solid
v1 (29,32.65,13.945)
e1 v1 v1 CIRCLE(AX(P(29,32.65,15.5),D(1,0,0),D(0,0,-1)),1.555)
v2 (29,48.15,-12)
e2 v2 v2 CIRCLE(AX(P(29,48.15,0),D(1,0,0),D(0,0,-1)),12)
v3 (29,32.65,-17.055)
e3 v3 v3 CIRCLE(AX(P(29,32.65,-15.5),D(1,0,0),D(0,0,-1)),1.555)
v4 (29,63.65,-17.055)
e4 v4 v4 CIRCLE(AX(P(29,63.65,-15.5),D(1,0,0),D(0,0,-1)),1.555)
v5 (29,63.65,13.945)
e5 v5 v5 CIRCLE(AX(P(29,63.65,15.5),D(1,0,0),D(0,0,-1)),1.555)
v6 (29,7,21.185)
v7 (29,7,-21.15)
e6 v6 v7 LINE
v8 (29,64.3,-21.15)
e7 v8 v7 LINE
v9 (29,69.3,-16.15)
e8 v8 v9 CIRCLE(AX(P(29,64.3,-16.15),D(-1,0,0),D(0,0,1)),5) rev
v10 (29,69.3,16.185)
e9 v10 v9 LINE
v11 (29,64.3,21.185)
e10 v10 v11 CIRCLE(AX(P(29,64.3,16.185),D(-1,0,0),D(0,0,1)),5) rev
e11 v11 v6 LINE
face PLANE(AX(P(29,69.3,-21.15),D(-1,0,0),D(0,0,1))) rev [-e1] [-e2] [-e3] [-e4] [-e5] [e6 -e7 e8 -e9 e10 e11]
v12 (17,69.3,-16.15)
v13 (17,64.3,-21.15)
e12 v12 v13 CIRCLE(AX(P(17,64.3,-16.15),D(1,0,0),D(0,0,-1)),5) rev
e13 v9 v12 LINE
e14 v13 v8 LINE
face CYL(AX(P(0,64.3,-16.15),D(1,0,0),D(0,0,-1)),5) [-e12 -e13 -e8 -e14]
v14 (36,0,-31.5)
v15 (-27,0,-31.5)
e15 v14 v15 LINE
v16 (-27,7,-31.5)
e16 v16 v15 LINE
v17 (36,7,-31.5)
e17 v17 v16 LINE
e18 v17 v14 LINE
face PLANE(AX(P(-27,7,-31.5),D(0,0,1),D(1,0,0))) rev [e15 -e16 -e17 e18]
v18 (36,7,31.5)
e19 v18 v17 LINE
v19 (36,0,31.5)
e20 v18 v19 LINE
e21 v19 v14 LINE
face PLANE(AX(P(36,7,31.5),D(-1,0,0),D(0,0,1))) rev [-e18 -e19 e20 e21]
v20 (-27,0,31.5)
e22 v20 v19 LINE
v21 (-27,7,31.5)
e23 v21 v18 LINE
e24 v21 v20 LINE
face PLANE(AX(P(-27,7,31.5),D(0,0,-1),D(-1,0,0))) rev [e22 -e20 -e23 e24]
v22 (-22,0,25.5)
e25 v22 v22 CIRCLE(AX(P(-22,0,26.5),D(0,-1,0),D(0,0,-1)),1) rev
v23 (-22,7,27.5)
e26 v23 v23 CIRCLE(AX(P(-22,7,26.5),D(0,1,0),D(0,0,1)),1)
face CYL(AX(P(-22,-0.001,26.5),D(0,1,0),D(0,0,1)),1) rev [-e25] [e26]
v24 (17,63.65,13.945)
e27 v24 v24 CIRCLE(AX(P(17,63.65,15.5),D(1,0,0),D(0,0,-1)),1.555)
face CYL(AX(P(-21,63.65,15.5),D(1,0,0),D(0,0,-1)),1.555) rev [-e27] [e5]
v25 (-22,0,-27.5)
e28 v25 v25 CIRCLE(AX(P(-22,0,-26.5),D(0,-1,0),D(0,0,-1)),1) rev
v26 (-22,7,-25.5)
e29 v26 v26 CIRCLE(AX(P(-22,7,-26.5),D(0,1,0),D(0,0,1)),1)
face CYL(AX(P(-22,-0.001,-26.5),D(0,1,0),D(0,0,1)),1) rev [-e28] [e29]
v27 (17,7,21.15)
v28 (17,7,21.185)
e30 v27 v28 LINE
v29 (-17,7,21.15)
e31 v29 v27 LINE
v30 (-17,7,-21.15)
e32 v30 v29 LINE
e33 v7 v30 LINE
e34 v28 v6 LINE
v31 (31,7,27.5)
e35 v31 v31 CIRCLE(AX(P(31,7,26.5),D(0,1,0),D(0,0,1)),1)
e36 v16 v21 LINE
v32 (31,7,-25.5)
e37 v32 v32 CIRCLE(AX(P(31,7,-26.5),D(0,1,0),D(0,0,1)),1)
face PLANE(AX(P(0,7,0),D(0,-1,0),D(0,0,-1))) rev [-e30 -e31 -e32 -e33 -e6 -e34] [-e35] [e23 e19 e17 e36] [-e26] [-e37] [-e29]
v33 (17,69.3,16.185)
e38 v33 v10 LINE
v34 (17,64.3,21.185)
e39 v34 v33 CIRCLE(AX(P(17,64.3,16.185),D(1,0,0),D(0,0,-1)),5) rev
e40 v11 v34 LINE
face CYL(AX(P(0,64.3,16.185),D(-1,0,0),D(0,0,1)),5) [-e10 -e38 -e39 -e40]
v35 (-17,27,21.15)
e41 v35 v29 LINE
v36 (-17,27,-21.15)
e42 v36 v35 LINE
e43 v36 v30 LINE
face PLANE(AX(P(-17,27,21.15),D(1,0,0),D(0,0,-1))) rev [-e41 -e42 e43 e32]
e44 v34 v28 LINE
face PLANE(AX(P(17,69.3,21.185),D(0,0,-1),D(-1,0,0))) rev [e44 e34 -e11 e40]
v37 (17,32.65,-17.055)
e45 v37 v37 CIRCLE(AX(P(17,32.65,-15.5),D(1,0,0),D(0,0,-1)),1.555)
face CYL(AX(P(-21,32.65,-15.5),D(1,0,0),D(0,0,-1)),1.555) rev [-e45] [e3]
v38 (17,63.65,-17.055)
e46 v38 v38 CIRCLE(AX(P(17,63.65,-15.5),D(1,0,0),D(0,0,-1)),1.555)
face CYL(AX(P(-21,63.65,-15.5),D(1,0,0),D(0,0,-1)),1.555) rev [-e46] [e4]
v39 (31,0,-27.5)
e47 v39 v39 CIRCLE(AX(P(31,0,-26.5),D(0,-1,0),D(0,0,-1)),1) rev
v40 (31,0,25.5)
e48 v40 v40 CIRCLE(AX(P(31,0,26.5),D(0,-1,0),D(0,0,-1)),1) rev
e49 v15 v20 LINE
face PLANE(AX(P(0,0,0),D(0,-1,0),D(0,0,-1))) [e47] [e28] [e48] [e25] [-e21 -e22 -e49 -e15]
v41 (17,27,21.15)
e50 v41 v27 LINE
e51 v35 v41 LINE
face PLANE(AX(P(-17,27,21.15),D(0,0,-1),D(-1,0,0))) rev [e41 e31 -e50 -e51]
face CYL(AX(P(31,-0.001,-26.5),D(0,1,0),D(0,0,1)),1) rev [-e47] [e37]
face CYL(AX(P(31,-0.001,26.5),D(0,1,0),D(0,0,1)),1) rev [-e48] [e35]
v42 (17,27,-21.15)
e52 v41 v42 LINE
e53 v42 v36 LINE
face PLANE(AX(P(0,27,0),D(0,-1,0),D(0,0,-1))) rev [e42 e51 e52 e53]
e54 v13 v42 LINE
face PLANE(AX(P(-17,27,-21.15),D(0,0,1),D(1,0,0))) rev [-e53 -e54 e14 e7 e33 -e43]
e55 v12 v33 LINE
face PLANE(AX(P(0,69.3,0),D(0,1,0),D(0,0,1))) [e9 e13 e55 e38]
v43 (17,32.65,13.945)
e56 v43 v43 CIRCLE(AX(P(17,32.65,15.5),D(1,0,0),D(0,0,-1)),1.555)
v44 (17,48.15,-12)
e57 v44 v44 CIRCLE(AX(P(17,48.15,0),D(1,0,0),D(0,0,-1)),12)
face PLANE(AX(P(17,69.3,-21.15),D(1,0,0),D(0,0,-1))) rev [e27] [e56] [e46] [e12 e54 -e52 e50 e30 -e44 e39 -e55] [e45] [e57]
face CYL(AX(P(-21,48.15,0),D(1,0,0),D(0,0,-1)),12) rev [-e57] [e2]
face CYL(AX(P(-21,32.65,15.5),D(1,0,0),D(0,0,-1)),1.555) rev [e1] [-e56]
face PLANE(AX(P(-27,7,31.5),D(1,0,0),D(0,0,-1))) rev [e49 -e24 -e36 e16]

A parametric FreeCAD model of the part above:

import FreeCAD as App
import Part
import Sketcher

V = App.Vector


def edges_at(feature, points):
    """Names of the edges that pass closest to the given points."""
    edges = feature.Shape.Edges
    near = lambda p: min(range(len(edges)), key=lambda i: edges[i].distToShape(Part.Vertex(*p))[0])
    return sorted({f"Edge{near(p) + 1}" for p in points})

doc = App.newDocument("Part")
params = doc.addObject("Spreadsheet::Sheet", "Params")
for row, (alias, value) in enumerate([
    ("sketch1_width", "63 mm"),
    ("pad1_length", "7 mm"),
    ("sketch2_width", "34 mm"),
    ("sketch2_height", "42.3 mm"),
    ("pad2_length", "20 mm"),
    ("sketch3_width", "12 mm"),
    ("pad3_length", "62.3 mm"),
    ("sketch4_diameter", "24 mm"),
    ("sketch4_diameter2", "3.11 mm"),
    ("pocket1_length", "50 mm"),
    ("fillet_radius", "5 mm"),
    ("sketch5_diameter", "2 mm"),
    ("sketch6_diameter", "2 mm"),
    ("sketch7_diameter", "2 mm"),
    ("sketch8_diameter", "2 mm"),
], start=1):
    params.set(f"A{row}", alias)
    params.set(f"B{row}", "=" + value)
    params.setAlias(f"B{row}", alias)

body = doc.addObject("PartDesign::Body", "Body")

# Sketch on XZ plane
sketch1 = doc.addObject("Sketcher::SketchObject", "Sketch")
body.addObject(sketch1)
sketch1.AttachmentSupport = (doc.XZ_Plane, [""])
sketch1.MapMode = "FlatFace"
sketch1.addGeometry([
    Part.LineSegment(V(-27, -32, 0), V(-27, 32, 0)),
    Part.LineSegment(V(-27, 32, 0), V(36, 32, 0)),
    Part.LineSegment(V(36, 32, 0), V(36, -32, 0)),
    Part.LineSegment(V(36, -32, 0), V(-27, -32, 0)),
], False)
sketch1.addConstraint([
    Sketcher.Constraint("Coincident", 0, 2, 1, 1),
    Sketcher.Constraint("Coincident", 1, 2, 2, 1),
    Sketcher.Constraint("Coincident", 2, 2, 3, 1),
    Sketcher.Constraint("Coincident", 3, 2, 0, 1),
    Sketcher.Constraint("Vertical", 0),
    Sketcher.Constraint("Horizontal", 1),
    Sketcher.Constraint("Vertical", 2),
    Sketcher.Constraint("Horizontal", 3),
    Sketcher.Constraint("Equal", 3, 0),
    Sketcher.Constraint("DistanceX", 1, 1, 1, 2, 63.0),
    Sketcher.Constraint("DistanceX", 0, 2, -1, 1, 27.0),
    Sketcher.Constraint("DistanceY", -1, 1, 0, 2, 31.5),
])
sketch1.setExpression("Constraints[9]", "Params.sketch1_width")
pad1 = doc.addObject("PartDesign::Pad", "Pad")
body.addObject(pad1)
pad1.Profile = sketch1
pad1.setExpression("Length", "Params.pad1_length")
pad1.Reversed = True

# Sketch on XZ plane
sketch2 = doc.addObject("Sketcher::SketchObject", "Sketch001")
body.addObject(sketch2)
sketch2.AttachmentSupport = (doc.XZ_Plane, [""])
sketch2.MapMode = "FlatFace"
sketch2.AttachmentOffset = App.Placement(V(0, 0, -7), App.Rotation())
sketch2.addGeometry([
    Part.LineSegment(V(-17, -21, 0), V(-17, 21, 0)),
    Part.LineSegment(V(-17, 21, 0), V(17, 21, 0)),
    Part.LineSegment(V(17, 21, 0), V(17, -21, 0)),
    Part.LineSegment(V(17, -21, 0), V(-17, -21, 0)),
], False)
sketch2.addConstraint([
    Sketcher.Constraint("Coincident", 0, 2, 1, 1),
    Sketcher.Constraint("Coincident", 1, 2, 2, 1),
    Sketcher.Constraint("Coincident", 2, 2, 3, 1),
    Sketcher.Constraint("Coincident", 3, 2, 0, 1),
    Sketcher.Constraint("Vertical", 0),
    Sketcher.Constraint("Horizontal", 1),
    Sketcher.Constraint("Vertical", 2),
    Sketcher.Constraint("Horizontal", 3),
    Sketcher.Constraint("Symmetric", 0, 2, 2, 2, -1, 1),
    Sketcher.Constraint("DistanceX", 1, 1, 1, 2, 34.0),
    Sketcher.Constraint("DistanceY", 0, 1, 0, 2, 42.3),
])
sketch2.setExpression("Constraints[9]", "Params.sketch2_width")
sketch2.setExpression("Constraints[10]", "Params.sketch2_height")
pad2 = doc.addObject("PartDesign::Pad", "Pad001")
body.addObject(pad2)
pad2.Profile = sketch2
pad2.setExpression("Length", "Params.pad2_length")
pad2.Reversed = True

# Sketch on XZ plane
sketch3 = doc.addObject("Sketcher::SketchObject", "Sketch002")
body.addObject(sketch3)
sketch3.AttachmentSupport = (doc.XZ_Plane, [""])
sketch3.MapMode = "FlatFace"
sketch3.AttachmentOffset = App.Placement(V(0, 0, -7), App.Rotation())
sketch3.addGeometry([
    Part.LineSegment(V(17, -21, 0), V(17, 21, 0)),
    Part.LineSegment(V(17, 21, 0), V(29, 21, 0)),
    Part.LineSegment(V(29, 21, 0), V(29, -21, 0)),
    Part.LineSegment(V(29, -21, 0), V(17, -21, 0)),
], False)
sketch3.addConstraint([
    Sketcher.Constraint("Coincident", 0, 2, 1, 1),
    Sketcher.Constraint("Coincident", 1, 2, 2, 1),
    Sketcher.Constraint("Coincident", 2, 2, 3, 1),
    Sketcher.Constraint("Coincident", 3, 2, 0, 1),
    Sketcher.Constraint("Vertical", 0),
    Sketcher.Constraint("Horizontal", 1),
    Sketcher.Constraint("Vertical", 2),
    Sketcher.Constraint("Horizontal", 3),
    Sketcher.Constraint("DistanceX", 1, 1, 1, 2, 12.0),
    Sketcher.Constraint("DistanceX", -1, 1, 0, 2, 17.0),
    Sketcher.Constraint("DistanceY", 0, 1, 0, 2, 42.335),
    Sketcher.Constraint("DistanceY", 2, 2, -1, 1, 21.15),
])
sketch3.setExpression("Constraints[8]", "Params.sketch3_width")
pad3 = doc.addObject("PartDesign::Pad", "Pad002")
body.addObject(pad3)
pad3.Profile = sketch3
pad3.setExpression("Length", "Params.pad3_length")
pad3.Reversed = True

# Sketch on YZ plane
sketch4 = doc.addObject("Sketcher::SketchObject", "Sketch003")
body.addObject(sketch4)
sketch4.AttachmentSupport = (doc.YZ_Plane, [""])
sketch4.MapMode = "FlatFace"
sketch4.AttachmentOffset = App.Placement(V(0, 0, 29), App.Rotation())
sketch4.addGeometry([
    Part.Circle(V(48.1, 0, 0), V(0, 0, 1), 12),  # 0
    Part.Circle(V(32.6, 15.5, 0), V(0, 0, 1), 1.6),  # 1
    Part.Circle(V(32.6, -15.5, 0), V(0, 0, 1), 1.6),  # 2
    Part.Circle(V(63.6, -15.5, 0), V(0, 0, 1), 1.6),  # 3
    Part.Circle(V(63.6, 15.5, 0), V(0, 0, 1), 1.6),  # 4
], False)
sketch4.addConstraint([
    Sketcher.Constraint("Equal", 1, 2),
    Sketcher.Constraint("Equal", 2, 3),
    Sketcher.Constraint("Equal", 3, 4),
    Sketcher.Constraint("Symmetric", 1, 3, 2, 3, -1),
    Sketcher.Constraint("Symmetric", 3, 3, 4, 3, -1),
    Sketcher.Constraint("PointOnObject", 0, 3, -1),
    Sketcher.Constraint("Horizontal", 2, 3, 3, 3),
    Sketcher.Constraint("Diameter", 0, 24.0),
    Sketcher.Constraint("Diameter", 1, 3.11),
    Sketcher.Constraint("DistanceY", 2, 3, 1, 3, 31.0),
    Sketcher.Constraint("DistanceX", 2, 3, 3, 3, 31.0),
    Sketcher.Constraint("DistanceX", 1, 3, 0, 3, 15.5),
    Sketcher.Constraint("DistanceX", -1, 1, 0, 3, 48.15),
])
sketch4.setExpression("Constraints[7]", "Params.sketch4_diameter")
sketch4.setExpression("Constraints[8]", "Params.sketch4_diameter2")
pocket1 = doc.addObject("PartDesign::Pocket", "Pocket")
body.addObject(pocket1)
pocket1.Profile = sketch4
pocket1.setExpression("Length", "Params.pocket1_length")
doc.recompute()

fillet = doc.addObject("PartDesign::Fillet", "Fillet")
body.addObject(fillet)
fillet.Base = (pocket1, edges_at(pocket1, [(23, 69.3, 21.185), (23, 69.3, -21.15)]))
fillet.setExpression("Radius", "Params.fillet_radius")

# Sketch on XZ plane
sketch5 = doc.addObject("Sketcher::SketchObject", "Sketch004")
body.addObject(sketch5)
sketch5.AttachmentSupport = (doc.XZ_Plane, [""])
sketch5.MapMode = "FlatFace"
sketch5.AttachmentOffset = App.Placement(V(0, 0, -7), App.Rotation())
sketch5.addGeometry(Part.Circle(V(-22, -26.5, 0), V(0, 0, 1), 1), False)
sketch5.addConstraint([
    Sketcher.Constraint("Diameter", 0, 2.0),
    Sketcher.Constraint("DistanceX", 0, 3, -1, 1, 22.0),
    Sketcher.Constraint("DistanceY", 0, 3, -1, 1, 26.5),
])
sketch5.setExpression("Constraints[0]", "Params.sketch5_diameter")
pocket2 = doc.addObject("PartDesign::Pocket", "Pocket001")
body.addObject(pocket2)
pocket2.Profile = sketch5
pocket2.Type = "UpToFirst"
pocket2.Reversed = True

# Sketch on XZ plane
sketch6 = doc.addObject("Sketcher::SketchObject", "Sketch005")
body.addObject(sketch6)
sketch6.AttachmentSupport = (doc.XZ_Plane, [""])
sketch6.MapMode = "FlatFace"
sketch6.AttachmentOffset = App.Placement(V(0, 0, -7), App.Rotation())
sketch6.addGeometry(Part.Circle(V(31, -26.5, 0), V(0, 0, 1), 1), False)
sketch6.addConstraint([
    Sketcher.Constraint("Diameter", 0, 2.0),
    Sketcher.Constraint("DistanceX", -1, 1, 0, 3, 31.0),
    Sketcher.Constraint("DistanceY", 0, 3, -1, 1, 26.5),
])
sketch6.setExpression("Constraints[0]", "Params.sketch6_diameter")
pocket3 = doc.addObject("PartDesign::Pocket", "Pocket002")
body.addObject(pocket3)
pocket3.Profile = sketch6
pocket3.Type = "UpToFirst"
pocket3.Reversed = True

# Sketch on XZ plane
sketch7 = doc.addObject("Sketcher::SketchObject", "Sketch006")
body.addObject(sketch7)
sketch7.AttachmentSupport = (doc.XZ_Plane, [""])
sketch7.MapMode = "FlatFace"
sketch7.AttachmentOffset = App.Placement(V(0, 0, -7), App.Rotation())
sketch7.addGeometry(Part.Circle(V(31, 26.5, 0), V(0, 0, 1), 1), False)
sketch7.addConstraint([
    Sketcher.Constraint("Diameter", 0, 2.0),
    Sketcher.Constraint("DistanceX", -1, 1, 0, 3, 31.0),
    Sketcher.Constraint("DistanceY", -1, 1, 0, 3, 26.5),
])
sketch7.setExpression("Constraints[0]", "Params.sketch7_diameter")
pocket4 = doc.addObject("PartDesign::Pocket", "Pocket003")
body.addObject(pocket4)
pocket4.Profile = sketch7
pocket4.Type = "UpToFirst"
pocket4.Reversed = True

# Sketch on XZ plane
sketch8 = doc.addObject("Sketcher::SketchObject", "Sketch007")
body.addObject(sketch8)
sketch8.AttachmentSupport = (doc.XZ_Plane, [""])
sketch8.MapMode = "FlatFace"
sketch8.AttachmentOffset = App.Placement(V(0, 0, -7), App.Rotation())
sketch8.addGeometry(Part.Circle(V(-22, 26.5, 0), V(0, 0, 1), 1), False)
sketch8.addConstraint([
    Sketcher.Constraint("Diameter", 0, 2.0),
    Sketcher.Constraint("DistanceX", 0, 3, -1, 1, 22.0),
    Sketcher.Constraint("DistanceY", -1, 1, 0, 3, 26.5),
])
sketch8.setExpression("Constraints[0]", "Params.sketch8_diameter")
pocket5 = doc.addObject("PartDesign::Pocket", "Pocket004")
body.addObject(pocket5)
pocket5.Profile = sketch8
pocket5.Type = "UpToFirst"
pocket5.Reversed = True

doc.recompute()
